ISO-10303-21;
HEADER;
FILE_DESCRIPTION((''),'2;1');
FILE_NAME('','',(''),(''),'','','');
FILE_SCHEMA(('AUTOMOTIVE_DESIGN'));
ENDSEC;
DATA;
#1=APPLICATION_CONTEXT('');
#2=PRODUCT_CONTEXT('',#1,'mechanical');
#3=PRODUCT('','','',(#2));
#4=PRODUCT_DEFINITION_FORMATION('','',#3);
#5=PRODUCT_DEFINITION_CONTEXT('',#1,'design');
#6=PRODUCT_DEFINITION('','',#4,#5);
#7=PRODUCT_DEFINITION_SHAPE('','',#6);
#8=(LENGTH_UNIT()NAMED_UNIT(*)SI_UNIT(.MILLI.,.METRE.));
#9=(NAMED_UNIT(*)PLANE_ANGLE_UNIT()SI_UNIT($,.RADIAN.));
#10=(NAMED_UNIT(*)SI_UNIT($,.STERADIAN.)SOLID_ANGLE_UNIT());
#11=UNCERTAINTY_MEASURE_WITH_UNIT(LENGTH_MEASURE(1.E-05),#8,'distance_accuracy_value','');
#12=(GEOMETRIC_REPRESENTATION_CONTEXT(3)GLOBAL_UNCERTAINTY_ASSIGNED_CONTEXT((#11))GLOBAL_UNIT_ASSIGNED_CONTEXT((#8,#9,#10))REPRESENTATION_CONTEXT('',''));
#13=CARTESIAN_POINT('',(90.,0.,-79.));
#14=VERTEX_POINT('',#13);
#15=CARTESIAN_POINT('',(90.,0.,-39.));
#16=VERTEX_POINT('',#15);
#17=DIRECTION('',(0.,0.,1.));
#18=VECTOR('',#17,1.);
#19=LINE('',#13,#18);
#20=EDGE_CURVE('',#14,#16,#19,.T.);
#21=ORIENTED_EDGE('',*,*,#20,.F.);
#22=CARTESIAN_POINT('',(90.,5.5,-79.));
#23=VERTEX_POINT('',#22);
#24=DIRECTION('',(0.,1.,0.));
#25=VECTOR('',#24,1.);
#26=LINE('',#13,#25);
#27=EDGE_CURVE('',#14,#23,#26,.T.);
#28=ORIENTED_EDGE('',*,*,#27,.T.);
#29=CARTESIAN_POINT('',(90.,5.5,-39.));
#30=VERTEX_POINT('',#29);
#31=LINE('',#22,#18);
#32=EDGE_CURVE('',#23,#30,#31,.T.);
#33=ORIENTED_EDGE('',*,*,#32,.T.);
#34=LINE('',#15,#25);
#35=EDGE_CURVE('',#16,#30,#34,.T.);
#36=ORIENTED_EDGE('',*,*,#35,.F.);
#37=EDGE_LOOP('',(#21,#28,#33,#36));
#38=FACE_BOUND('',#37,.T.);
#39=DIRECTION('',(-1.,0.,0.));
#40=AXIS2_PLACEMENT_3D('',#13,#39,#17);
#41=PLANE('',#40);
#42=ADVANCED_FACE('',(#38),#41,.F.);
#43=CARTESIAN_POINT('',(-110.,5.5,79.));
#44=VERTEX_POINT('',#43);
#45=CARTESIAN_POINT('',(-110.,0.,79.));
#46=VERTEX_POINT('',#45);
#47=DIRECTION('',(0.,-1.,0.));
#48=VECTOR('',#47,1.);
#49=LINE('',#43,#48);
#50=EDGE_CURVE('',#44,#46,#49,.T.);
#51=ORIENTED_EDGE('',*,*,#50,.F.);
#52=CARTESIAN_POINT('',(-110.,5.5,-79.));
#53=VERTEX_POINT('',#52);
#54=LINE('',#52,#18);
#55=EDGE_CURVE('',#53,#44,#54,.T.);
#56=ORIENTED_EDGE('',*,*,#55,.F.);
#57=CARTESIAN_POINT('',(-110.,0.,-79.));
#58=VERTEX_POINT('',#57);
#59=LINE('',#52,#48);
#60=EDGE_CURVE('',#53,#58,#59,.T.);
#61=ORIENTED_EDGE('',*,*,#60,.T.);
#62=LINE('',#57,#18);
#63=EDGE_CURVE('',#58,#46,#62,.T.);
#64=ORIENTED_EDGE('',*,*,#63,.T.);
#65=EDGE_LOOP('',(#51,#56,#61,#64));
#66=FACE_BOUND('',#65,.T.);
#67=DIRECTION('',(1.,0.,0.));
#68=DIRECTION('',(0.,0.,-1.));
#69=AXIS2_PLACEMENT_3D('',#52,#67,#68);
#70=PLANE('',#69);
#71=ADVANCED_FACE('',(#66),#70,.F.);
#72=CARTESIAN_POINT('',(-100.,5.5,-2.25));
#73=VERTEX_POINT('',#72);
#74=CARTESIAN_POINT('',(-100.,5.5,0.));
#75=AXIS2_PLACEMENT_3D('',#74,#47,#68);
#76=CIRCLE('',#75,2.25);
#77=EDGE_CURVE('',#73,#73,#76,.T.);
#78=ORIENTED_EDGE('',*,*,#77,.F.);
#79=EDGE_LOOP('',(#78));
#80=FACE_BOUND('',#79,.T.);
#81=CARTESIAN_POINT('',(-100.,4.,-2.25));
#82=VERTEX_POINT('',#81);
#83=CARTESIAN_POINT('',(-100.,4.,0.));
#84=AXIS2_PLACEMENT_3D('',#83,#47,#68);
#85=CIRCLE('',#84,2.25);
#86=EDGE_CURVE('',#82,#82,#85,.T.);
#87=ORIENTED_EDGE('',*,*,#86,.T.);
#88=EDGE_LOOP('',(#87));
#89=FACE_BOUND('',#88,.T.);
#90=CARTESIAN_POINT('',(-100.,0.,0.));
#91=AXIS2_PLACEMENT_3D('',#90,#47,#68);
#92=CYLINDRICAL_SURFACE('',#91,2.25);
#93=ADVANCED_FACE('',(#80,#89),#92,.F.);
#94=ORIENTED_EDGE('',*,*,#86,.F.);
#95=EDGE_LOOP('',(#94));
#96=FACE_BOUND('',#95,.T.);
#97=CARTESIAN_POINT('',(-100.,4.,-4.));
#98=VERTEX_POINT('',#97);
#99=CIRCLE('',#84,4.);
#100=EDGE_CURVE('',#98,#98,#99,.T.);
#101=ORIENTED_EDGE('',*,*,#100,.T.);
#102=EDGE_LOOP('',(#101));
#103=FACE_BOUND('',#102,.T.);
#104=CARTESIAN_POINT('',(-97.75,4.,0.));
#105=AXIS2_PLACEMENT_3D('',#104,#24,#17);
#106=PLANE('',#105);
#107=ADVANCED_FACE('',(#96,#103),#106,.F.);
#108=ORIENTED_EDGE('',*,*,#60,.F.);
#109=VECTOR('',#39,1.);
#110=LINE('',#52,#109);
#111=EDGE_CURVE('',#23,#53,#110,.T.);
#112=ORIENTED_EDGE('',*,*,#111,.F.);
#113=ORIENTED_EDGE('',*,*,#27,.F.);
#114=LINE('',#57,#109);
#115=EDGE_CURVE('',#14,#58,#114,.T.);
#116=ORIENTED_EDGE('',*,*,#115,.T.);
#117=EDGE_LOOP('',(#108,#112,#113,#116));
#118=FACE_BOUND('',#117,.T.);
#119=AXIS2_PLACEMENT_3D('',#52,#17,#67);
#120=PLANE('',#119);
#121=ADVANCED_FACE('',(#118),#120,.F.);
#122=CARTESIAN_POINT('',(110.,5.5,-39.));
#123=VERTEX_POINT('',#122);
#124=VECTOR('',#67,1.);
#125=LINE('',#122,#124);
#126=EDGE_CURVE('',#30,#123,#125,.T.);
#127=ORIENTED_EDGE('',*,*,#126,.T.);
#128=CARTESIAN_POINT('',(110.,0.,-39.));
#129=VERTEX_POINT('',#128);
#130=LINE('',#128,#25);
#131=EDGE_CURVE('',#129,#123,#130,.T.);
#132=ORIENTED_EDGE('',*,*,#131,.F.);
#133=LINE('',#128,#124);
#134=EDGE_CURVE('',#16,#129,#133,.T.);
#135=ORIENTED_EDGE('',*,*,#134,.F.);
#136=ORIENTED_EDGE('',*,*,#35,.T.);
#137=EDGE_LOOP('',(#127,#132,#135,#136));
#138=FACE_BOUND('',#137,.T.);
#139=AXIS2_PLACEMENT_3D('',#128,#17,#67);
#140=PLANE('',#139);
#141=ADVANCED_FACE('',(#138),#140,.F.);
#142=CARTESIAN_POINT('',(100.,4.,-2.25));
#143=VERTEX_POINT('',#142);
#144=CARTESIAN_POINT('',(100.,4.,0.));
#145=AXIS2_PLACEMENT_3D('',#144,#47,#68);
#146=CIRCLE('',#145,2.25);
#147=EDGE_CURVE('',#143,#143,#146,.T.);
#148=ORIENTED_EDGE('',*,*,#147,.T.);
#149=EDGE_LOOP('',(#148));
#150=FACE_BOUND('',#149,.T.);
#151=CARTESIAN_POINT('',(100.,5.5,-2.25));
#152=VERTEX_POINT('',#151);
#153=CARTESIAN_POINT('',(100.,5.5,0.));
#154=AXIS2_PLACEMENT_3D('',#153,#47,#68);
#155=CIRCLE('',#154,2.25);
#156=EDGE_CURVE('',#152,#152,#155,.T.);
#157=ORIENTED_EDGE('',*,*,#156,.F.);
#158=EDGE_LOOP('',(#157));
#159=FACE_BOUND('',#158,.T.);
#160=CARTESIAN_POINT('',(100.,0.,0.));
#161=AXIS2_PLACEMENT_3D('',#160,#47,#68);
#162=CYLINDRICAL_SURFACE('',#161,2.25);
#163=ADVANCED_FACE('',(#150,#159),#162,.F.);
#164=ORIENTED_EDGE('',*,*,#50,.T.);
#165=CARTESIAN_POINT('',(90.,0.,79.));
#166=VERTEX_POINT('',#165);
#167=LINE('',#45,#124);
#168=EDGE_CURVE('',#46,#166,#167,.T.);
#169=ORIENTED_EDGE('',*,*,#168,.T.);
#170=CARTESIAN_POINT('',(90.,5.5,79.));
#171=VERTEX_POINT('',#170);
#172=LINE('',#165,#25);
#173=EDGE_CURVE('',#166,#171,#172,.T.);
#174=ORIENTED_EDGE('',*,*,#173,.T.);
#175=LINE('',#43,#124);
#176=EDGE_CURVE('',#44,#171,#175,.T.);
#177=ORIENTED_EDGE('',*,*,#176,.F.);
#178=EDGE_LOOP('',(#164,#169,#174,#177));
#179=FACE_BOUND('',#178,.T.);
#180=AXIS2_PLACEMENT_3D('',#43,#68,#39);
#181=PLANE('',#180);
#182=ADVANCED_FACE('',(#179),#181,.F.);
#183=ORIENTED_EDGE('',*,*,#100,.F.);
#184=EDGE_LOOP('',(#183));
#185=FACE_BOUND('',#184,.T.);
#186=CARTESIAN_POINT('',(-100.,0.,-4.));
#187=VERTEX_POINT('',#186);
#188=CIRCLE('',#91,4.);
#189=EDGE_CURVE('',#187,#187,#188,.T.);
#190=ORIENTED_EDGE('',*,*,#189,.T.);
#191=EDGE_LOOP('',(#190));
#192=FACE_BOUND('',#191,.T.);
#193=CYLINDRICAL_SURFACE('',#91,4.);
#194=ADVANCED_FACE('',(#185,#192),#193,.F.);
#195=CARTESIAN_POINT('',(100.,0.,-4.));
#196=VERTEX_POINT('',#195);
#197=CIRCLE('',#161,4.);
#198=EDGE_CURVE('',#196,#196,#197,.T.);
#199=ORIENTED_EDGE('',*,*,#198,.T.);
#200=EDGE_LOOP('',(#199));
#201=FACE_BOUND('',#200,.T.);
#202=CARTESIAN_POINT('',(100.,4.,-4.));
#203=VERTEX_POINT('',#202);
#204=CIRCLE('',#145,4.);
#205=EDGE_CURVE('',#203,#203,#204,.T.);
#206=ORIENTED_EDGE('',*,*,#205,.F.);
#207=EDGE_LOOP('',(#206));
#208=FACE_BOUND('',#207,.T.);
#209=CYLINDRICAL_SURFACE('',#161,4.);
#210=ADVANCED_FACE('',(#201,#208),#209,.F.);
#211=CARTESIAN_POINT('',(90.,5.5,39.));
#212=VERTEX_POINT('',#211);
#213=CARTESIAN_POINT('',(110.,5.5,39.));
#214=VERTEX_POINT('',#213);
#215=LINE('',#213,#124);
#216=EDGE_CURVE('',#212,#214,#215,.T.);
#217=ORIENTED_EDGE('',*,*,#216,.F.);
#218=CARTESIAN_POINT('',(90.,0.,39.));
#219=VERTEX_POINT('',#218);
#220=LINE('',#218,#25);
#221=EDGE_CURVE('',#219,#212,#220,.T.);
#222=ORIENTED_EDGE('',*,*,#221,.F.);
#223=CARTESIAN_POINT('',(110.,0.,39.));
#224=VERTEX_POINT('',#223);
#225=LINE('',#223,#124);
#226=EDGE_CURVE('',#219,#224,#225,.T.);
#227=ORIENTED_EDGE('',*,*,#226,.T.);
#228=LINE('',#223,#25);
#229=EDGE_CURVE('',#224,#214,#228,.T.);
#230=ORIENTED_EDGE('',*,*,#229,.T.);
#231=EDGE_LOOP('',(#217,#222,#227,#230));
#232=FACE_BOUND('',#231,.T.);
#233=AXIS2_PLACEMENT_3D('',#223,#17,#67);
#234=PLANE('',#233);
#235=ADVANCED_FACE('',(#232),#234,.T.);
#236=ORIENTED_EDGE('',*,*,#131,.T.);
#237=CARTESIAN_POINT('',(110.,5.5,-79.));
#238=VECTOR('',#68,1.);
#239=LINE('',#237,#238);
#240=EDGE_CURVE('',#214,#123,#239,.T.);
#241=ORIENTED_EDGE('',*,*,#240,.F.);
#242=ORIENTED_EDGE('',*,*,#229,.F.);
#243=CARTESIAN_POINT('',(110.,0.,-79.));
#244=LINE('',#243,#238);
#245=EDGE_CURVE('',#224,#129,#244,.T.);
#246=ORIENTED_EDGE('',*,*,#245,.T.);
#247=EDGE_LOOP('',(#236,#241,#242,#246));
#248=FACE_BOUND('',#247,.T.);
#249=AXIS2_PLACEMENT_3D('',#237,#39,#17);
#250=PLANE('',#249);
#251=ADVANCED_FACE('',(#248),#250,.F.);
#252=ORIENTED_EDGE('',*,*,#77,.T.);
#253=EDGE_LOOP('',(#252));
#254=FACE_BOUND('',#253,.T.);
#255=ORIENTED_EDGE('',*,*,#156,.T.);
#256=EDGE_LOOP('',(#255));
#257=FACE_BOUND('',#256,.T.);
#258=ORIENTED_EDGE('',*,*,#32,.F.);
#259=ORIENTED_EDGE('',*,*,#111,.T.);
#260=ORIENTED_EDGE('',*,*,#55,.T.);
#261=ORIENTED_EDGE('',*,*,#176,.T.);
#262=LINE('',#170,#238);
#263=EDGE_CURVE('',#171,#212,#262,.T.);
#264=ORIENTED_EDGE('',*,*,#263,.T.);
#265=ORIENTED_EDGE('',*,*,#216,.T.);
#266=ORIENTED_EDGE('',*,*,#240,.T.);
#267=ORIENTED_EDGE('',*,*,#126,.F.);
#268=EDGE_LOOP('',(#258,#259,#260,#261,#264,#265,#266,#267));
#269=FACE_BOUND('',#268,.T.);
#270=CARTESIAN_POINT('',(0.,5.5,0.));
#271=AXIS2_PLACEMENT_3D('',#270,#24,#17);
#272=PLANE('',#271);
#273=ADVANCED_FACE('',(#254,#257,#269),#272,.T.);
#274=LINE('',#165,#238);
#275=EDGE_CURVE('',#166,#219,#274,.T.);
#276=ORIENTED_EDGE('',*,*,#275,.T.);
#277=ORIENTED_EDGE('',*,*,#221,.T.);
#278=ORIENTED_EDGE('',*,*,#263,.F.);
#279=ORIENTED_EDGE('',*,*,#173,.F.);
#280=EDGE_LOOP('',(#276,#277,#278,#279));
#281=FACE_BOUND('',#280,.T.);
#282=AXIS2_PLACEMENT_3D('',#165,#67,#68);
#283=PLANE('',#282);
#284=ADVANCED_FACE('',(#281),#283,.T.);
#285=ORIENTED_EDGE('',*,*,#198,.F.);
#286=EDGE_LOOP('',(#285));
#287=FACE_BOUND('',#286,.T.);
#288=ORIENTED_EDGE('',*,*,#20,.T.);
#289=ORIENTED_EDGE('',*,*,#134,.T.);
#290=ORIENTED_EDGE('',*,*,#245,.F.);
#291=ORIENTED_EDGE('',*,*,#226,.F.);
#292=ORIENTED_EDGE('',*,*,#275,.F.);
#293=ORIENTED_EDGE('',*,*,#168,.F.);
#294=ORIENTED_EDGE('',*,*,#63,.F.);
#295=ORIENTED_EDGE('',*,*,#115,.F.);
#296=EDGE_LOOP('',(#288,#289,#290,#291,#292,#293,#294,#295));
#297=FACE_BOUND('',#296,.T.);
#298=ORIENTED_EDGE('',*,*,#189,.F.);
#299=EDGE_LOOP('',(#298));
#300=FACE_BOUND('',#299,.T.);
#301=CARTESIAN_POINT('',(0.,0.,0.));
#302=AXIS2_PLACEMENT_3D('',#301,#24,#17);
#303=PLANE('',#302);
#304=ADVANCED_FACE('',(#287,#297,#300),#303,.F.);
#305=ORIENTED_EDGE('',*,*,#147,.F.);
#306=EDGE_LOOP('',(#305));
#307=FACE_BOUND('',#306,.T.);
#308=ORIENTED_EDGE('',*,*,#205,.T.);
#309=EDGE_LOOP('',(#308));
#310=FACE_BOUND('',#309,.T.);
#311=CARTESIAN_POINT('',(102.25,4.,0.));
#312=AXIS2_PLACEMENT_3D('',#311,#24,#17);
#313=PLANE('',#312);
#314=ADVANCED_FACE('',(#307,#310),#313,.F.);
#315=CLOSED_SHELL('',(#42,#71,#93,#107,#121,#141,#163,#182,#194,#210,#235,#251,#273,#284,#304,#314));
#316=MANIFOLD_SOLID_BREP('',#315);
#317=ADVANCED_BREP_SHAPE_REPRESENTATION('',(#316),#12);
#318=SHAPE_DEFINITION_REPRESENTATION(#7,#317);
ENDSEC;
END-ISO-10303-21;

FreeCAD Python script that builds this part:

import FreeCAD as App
import Part
import Sketcher
Q = App.Units.Quantity

doc = App.newDocument("Part")
params = doc.addObject("Spreadsheet::Sheet", "Params")
for row, (alias, value) in enumerate([
    ("sketch1_width", "220 mm"),
    ("sketch1_height", "158 mm"),
    ("pad1_length", "5.5 mm"),
    ("sketch2_diameter", "4.5 mm"),
    ("hole_diameter", "4.5 mm"),
    ("hole_cbore_diameter", "8 mm"),
    ("hole_cbore_depth", "4 mm"),
    ("sketch3_width", "20 mm"),
    ("sketch3_height", "40 mm"),
], start=1):
    params.set(f"A{row}", alias)
    params.set(f"B{row}", "=" + value)
    params.setAlias(f"B{row}", alias)

body = doc.addObject("PartDesign::Body", "Body")

sketch1 = doc.addObject("Sketcher::SketchObject", "Sketch")
body.addObject(sketch1)
sketch1.AttachmentSupport = (doc.XZ_Plane, [""])
sketch1.MapMode = "FlatFace"
sketch1.addGeometry([
    Part.LineSegment(App.Vector(-110, -79, 0), App.Vector(-110, 79, 0)),
    Part.LineSegment(App.Vector(-110, 79, 0), App.Vector(110, 79, 0)),
    Part.LineSegment(App.Vector(110, 79, 0), App.Vector(110, -79, 0)),
    Part.LineSegment(App.Vector(110, -79, 0), App.Vector(-110, -79, 0)),
], False)
sketch1.addConstraint([
    Sketcher.Constraint("Coincident", 0, 2, 1, 1),
    Sketcher.Constraint("Coincident", 1, 2, 2, 1),
    Sketcher.Constraint("Coincident", 2, 2, 3, 1),
    Sketcher.Constraint("Coincident", 3, 2, 0, 1),
    Sketcher.Constraint("Vertical", 0),
    Sketcher.Constraint("Horizontal", 1),
    Sketcher.Constraint("Vertical", 2),
    Sketcher.Constraint("Horizontal", 3),
    Sketcher.Constraint("Symmetric", 0, 2, 2, 2, -1, 1),
    Sketcher.Constraint("DistanceX", 1, 1, 1, 2, Q("220 mm")),
    Sketcher.Constraint("DistanceY", 0, 1, 0, 2, Q("158 mm")),
])
sketch1.setExpression("Constraints[9]", "Params.sketch1_width")
sketch1.setExpression("Constraints[10]", "Params.sketch1_height")
pad1 = doc.addObject("PartDesign::Pad", "Pad")
body.addObject(pad1)
pad1.Profile = sketch1
pad1.setExpression("Length", "Params.pad1_length")
pad1.Reversed = True

sketch2 = doc.addObject("Sketcher::SketchObject", "Sketch001")
body.addObject(sketch2)
sketch2.AttachmentSupport = (doc.XZ_Plane, [""])
sketch2.MapMode = "FlatFace"
sketch2.addGeometry(Part.Circle(App.Vector(100, 0, 0), App.Vector(0, 0, 1), 2.2), False)
sketch2.addConstraint([
    Sketcher.Constraint("PointOnObject", 0, 3, -1),
    Sketcher.Constraint("Diameter", 0, Q("4.5 mm")),
    Sketcher.Constraint("DistanceX", -1, 1, 0, 3, Q("100 mm")),
])
sketch2.setExpression("Constraints[1]", "Params.sketch2_diameter")
doc.recompute()
hole = doc.addObject("PartDesign::Hole", "Hole")
body.addObject(hole)
hole.Profile = sketch2
hole.ThreadType = "None"
hole.setExpression("Diameter", "Params.hole_diameter")
hole.DepthType = "ThroughAll"
hole.HoleCutType = "Counterbore"
hole.setExpression("HoleCutDiameter", "Params.hole_cbore_diameter")
hole.setExpression("HoleCutDepth", "Params.hole_cbore_depth")
doc.recompute()

mirrored = doc.addObject("PartDesign::Mirrored", "Mirrored")
body.addObject(mirrored)
mirrored.Originals = [hole]
mirrored.MirrorPlane = (doc.YZ_Plane, [""])
body.Tip = mirrored

sketch3 = doc.addObject("Sketcher::SketchObject", "Sketch002")
body.addObject(sketch3)
sketch3.AttachmentSupport = (doc.XZ_Plane, [""])
sketch3.MapMode = "FlatFace"
sketch3.AttachmentOffset = App.Placement(App.Vector(0, 0, -5.5), App.Rotation())
sketch3.addGeometry([
    Part.LineSegment(App.Vector(90, -79, 0), App.Vector(90, -39, 0)),
    Part.LineSegment(App.Vector(90, -39, 0), App.Vector(110, -39, 0)),
    Part.LineSegment(App.Vector(110, -39, 0), App.Vector(110, -79, 0)),
    Part.LineSegment(App.Vector(110, -79, 0), App.Vector(90, -79, 0)),
], False)
sketch3.addConstraint([
    Sketcher.Constraint("Coincident", 0, 2, 1, 1),
    Sketcher.Constraint("Coincident", 1, 2, 2, 1),
    Sketcher.Constraint("Coincident", 2, 2, 3, 1),
    Sketcher.Constraint("Coincident", 3, 2, 0, 1),
    Sketcher.Constraint("Vertical", 0),
    Sketcher.Constraint("Horizontal", 1),
    Sketcher.Constraint("Vertical", 2),
    Sketcher.Constraint("Horizontal", 3),
    Sketcher.Constraint("DistanceX", 1, 1, 1, 2, Q("20 mm")),
    Sketcher.Constraint("DistanceY", 0, 1, 0, 2, Q("40 mm")),
    Sketcher.Constraint("DistanceX", -1, 1, 0, 2, Q("90 mm")),
    Sketcher.Constraint("DistanceY", 0, 2, -1, 1, Q("39 mm")),
])
sketch3.setExpression("Constraints[8]", "Params.sketch3_width")
sketch3.setExpression("Constraints[9]", "Params.sketch3_height")
pocket1 = doc.addObject("PartDesign::Pocket", "Pocket")
body.addObject(pocket1)
pocket1.Profile = sketch3
pocket1.Type = "ThroughAll"
pocket1.Reversed = True
doc.recompute()

mirrored2 = doc.addObject("PartDesign::Mirrored", "Mirrored001")
body.addObject(mirrored2)
mirrored2.Originals = [pocket1]
mirrored2.MirrorPlane = (doc.XY_Plane, [""])
body.Tip = mirrored2

doc.recompute()
